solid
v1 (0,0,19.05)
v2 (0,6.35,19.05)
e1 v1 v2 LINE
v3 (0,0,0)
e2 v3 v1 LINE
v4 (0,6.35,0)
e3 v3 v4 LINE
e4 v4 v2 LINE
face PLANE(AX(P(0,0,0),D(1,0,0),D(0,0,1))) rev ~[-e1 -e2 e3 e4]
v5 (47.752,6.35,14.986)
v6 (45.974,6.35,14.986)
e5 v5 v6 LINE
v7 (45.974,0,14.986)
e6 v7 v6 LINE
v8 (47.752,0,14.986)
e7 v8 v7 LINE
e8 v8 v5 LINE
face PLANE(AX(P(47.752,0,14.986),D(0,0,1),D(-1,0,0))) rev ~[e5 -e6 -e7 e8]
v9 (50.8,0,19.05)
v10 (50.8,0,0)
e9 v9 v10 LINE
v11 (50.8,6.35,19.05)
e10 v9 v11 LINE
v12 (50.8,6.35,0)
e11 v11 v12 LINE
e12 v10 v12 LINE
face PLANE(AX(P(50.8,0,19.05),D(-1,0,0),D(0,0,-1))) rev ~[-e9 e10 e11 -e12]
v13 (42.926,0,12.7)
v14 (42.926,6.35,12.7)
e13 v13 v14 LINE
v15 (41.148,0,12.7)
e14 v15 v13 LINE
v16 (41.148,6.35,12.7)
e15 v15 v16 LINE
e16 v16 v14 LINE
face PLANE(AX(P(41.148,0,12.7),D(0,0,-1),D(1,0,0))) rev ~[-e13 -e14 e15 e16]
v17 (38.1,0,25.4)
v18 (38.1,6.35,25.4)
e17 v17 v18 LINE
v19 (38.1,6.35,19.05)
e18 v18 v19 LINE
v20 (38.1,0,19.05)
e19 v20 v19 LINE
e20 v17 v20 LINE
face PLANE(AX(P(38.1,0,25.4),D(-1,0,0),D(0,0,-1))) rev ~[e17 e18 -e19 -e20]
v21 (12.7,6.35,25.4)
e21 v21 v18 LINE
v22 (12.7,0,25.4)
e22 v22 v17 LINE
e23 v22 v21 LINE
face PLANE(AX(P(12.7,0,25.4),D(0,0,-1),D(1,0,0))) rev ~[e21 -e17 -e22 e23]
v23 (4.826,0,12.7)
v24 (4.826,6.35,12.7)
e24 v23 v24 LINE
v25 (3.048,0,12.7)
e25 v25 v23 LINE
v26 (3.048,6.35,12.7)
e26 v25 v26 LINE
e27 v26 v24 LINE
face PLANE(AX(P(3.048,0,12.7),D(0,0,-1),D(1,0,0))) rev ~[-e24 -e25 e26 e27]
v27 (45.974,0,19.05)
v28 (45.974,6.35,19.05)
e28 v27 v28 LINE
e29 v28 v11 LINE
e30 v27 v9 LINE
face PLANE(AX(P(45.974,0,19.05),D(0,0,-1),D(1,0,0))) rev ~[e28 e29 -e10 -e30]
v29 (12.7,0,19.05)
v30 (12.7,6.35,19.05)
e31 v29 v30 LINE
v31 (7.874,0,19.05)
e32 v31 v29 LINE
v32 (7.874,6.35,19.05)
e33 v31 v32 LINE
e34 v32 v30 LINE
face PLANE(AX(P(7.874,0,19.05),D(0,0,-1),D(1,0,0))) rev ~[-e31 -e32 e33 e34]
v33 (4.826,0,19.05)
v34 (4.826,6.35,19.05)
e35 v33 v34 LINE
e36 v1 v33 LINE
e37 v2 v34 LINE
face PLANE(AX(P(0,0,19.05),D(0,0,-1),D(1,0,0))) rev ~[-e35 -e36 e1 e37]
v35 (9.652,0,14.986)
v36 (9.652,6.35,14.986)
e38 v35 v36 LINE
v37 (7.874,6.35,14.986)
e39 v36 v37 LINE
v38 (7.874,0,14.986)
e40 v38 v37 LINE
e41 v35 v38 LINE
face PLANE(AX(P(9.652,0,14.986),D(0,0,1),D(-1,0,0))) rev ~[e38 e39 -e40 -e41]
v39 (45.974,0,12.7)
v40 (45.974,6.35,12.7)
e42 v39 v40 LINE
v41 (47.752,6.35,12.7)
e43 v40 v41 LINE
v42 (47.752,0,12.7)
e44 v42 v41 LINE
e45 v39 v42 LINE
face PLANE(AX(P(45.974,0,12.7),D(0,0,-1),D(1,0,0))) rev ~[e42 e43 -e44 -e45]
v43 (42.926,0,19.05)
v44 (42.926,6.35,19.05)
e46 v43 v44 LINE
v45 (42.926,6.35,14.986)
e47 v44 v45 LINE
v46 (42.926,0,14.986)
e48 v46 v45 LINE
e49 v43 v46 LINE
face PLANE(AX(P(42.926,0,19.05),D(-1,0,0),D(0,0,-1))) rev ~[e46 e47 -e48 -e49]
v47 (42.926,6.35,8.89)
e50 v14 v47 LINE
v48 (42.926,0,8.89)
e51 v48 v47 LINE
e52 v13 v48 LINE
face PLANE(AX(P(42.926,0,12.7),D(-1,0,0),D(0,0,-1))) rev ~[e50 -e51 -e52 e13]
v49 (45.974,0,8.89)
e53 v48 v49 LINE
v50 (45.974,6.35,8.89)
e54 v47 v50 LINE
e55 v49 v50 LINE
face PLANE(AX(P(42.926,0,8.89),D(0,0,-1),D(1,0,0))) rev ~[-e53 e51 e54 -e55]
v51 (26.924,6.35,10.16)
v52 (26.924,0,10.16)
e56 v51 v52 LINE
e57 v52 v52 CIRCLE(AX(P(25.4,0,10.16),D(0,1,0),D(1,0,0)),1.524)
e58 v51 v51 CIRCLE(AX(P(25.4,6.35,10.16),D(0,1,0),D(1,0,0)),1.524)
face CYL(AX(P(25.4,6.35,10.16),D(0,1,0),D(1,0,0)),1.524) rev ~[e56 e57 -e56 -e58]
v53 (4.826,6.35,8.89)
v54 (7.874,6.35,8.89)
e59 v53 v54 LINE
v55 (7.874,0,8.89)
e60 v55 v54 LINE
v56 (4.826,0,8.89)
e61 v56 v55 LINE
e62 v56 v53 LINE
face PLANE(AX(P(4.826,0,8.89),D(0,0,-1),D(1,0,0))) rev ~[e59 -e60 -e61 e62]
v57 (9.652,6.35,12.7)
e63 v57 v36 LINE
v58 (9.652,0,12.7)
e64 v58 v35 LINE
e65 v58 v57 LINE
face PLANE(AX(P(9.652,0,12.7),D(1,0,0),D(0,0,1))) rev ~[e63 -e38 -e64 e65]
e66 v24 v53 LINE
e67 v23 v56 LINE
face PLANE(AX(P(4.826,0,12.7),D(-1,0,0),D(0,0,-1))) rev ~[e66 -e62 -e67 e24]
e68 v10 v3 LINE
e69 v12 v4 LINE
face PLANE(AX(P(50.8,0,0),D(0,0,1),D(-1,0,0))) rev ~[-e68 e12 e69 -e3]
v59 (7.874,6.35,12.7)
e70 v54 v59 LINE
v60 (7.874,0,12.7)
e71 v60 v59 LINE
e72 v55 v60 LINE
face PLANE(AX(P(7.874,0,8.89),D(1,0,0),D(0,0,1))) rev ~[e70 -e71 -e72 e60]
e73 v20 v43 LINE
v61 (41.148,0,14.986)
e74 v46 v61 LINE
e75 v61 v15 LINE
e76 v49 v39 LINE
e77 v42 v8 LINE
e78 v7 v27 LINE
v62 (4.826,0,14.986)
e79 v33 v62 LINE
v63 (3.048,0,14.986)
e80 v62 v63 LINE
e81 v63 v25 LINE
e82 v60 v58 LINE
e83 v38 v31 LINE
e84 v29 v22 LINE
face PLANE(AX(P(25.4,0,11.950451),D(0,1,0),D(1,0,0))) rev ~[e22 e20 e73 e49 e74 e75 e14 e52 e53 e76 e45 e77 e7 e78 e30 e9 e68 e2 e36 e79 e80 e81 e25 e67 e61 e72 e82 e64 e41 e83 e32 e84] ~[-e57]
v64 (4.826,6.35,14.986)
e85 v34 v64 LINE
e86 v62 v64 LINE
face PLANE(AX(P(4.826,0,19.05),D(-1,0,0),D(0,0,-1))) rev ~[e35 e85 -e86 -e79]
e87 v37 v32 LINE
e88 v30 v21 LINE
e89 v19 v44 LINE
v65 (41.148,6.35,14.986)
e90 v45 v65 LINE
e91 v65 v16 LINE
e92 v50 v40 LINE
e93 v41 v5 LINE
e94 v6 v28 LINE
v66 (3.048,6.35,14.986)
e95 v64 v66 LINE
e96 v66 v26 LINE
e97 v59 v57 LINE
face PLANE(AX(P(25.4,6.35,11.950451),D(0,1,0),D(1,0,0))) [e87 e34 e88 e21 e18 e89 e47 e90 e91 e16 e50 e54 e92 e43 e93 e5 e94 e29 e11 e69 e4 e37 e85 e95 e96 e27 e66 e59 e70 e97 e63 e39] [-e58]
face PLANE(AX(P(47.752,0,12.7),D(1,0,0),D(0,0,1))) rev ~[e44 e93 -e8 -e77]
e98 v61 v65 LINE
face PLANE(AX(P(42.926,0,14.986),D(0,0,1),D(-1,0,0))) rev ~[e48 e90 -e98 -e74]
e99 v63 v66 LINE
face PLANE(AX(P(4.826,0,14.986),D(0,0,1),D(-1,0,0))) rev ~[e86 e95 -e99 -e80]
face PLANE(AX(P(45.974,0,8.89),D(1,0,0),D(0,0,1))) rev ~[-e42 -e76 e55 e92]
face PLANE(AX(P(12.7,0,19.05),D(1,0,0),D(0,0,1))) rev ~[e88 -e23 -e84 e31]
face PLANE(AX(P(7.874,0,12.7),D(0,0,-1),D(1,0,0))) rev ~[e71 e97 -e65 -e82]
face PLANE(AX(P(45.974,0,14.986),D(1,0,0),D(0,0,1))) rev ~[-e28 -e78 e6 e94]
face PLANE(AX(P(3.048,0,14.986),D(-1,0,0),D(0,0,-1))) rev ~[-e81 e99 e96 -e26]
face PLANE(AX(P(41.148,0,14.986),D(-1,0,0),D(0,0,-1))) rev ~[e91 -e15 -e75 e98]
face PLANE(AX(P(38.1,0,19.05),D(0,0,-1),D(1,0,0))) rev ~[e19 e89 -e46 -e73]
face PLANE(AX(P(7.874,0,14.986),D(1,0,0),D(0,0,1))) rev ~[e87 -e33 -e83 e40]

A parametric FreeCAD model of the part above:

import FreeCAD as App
import Part
import Sketcher

V = App.Vector
Q = App.Units.Quantity


def add_polygon(sketch, points):
    """Adds a closed chain of lines whose ends are joined by coincident constraints."""
    first, n = sketch.GeometryCount, len(points)
    for a, b in zip(points, points[1:] + points[:1]):
        sketch.addGeometry(Part.LineSegment(App.Vector(*a, 0), App.Vector(*b, 0)), False)
    for i in range(n):
        sketch.addConstraint(Sketcher.Constraint("Coincident", first + i, 2, first + (i + 1) % n, 1))

doc = App.newDocument("Part")
params = doc.addObject("Spreadsheet::Sheet", "Params")
for row, (alias, value) in enumerate([
    ("sketch1_width", "2 in"),
    ("sketch1_width2", "1 in"),
    ("sketch1_width3", "0.19 in"),
    ("sketch1_width4", "0.07 in"),
    ("sketch1_height", "0.75 in"),
    ("pad1_length", "0.25 in"),
    ("sketch2_diameter", "0.12 in"),
], start=1):
    params.set(f"A{row}", alias)
    params.set(f"B{row}", "=" + value)
    params.setAlias(f"B{row}", alias)

body = doc.addObject("PartDesign::Body", "Body")

# Sketch on XZ plane
sketch1 = body.newObject("Sketcher::SketchObject", "Sketch")
sketch1.AttachmentSupport = (doc.getObject("XZ_Plane"), [""])
sketch1.MapMode = "FlatFace"
add_polygon(sketch1, [(50.8, 0), (0, 0), (0, 19.1), (4.8, 19.1), (4.8, 15), (3, 15), (3, 12.7), (4.8, 12.7), (4.8, 8.9), (7.9, 8.9), (7.9, 12.7), (9.7, 12.7), (9.7, 15), (7.9, 15), (7.9, 19.1), (12.7, 19.1), (12.7, 25.4), (38.1, 25.4), (38.1, 19.1), (42.9, 19.1), (42.9, 15), (41.1, 15), (41.1, 12.7), (42.9, 12.7), (42.9, 8.9), (46, 8.9), (46, 12.7), (47.8, 12.7), (47.8, 15), (46, 15), (46, 19.1), (50.8, 19.1)])  # lines 0-31
sketch1.addConstraint([
    Sketcher.Constraint("Horizontal", 0),
    Sketcher.Constraint("Vertical", 1),
    Sketcher.Constraint("Horizontal", 2),
    Sketcher.Constraint("Vertical", 3),
    Sketcher.Constraint("Horizontal", 4),
    Sketcher.Constraint("Vertical", 5),
    Sketcher.Constraint("Horizontal", 6),
    Sketcher.Constraint("Vertical", 7),
    Sketcher.Constraint("Horizontal", 8),
    Sketcher.Constraint("Vertical", 9),
    Sketcher.Constraint("Horizontal", 10),
    Sketcher.Constraint("Vertical", 11),
    Sketcher.Constraint("Horizontal", 12),
    Sketcher.Constraint("Vertical", 13),
    Sketcher.Constraint("Horizontal", 14),
    Sketcher.Constraint("Vertical", 15),
    Sketcher.Constraint("Horizontal", 16),
    Sketcher.Constraint("Vertical", 17),
    Sketcher.Constraint("Horizontal", 18),
    Sketcher.Constraint("Vertical", 19),
    Sketcher.Constraint("Horizontal", 20),
    Sketcher.Constraint("Vertical", 21),
    Sketcher.Constraint("Horizontal", 22),
    Sketcher.Constraint("Vertical", 23),
    Sketcher.Constraint("Horizontal", 24),
    Sketcher.Constraint("Vertical", 25),
    Sketcher.Constraint("Horizontal", 26),
    Sketcher.Constraint("Vertical", 27),
    Sketcher.Constraint("Horizontal", 28),
    Sketcher.Constraint("Vertical", 29),
    Sketcher.Constraint("Horizontal", 30),
    Sketcher.Constraint("Vertical", 31),
    Sketcher.Constraint("Coincident", 0, 2, -1, 1),
    Sketcher.Constraint("Horizontal", 6, 2, 9, 2),
    Sketcher.Constraint("Horizontal", 4, 2, 11, 2),
    Sketcher.Constraint("Horizontal", 2, 2, 13, 2),
    Sketcher.Constraint("Horizontal", 14, 2, 17, 2),
    Sketcher.Constraint("Horizontal", 12, 2, 19, 2),
    Sketcher.Constraint("Horizontal", 10, 2, 21, 2),
    Sketcher.Constraint("Horizontal", 8, 2, 23, 2),
    Sketcher.Constraint("Horizontal", 22, 2, 25, 2),
    Sketcher.Constraint("Horizontal", 20, 2, 27, 2),
    Sketcher.Constraint("Horizontal", 18, 2, 29, 2),
    Sketcher.Constraint("Vertical", 3, 2, 6, 2),
    Sketcher.Constraint("Vertical", 9, 2, 12, 2),
    Sketcher.Constraint("Vertical", 19, 2, 22, 2),
    Sketcher.Constraint("Vertical", 25, 2, 28, 2),
    Sketcher.Constraint("Equal", 6, 10),
    Sketcher.Constraint("Equal", 2, 14),
    Sketcher.Constraint("Equal", 14, 18),
    Sketcher.Constraint("Equal", 12, 20),
    Sketcher.Constraint("Equal", 8, 24),
    Sketcher.Constraint("Equal", 22, 26),
    Sketcher.Constraint("Equal", 18, 30),
    Sketcher.Constraint("DistanceX", 0, 2, 0, 1, Q("2 in")),
    Sketcher.Constraint("DistanceX", 16, 1, 16, 2, Q("1 in")),
    Sketcher.Constraint("DistanceY", -1, 1, 15, 2, Q("1 in")),
    Sketcher.Constraint("DistanceX", 2, 1, 2, 2, Q("0.19 in")),
    Sketcher.Constraint("DistanceX", 4, 2, 4, 1, Q("0.07 in")),
    Sketcher.Constraint("DistanceY", 1, 1, 1, 2, Q("0.75 in")),
    Sketcher.Constraint("DistanceY", 3, 2, 3, 1, Q("0.16 in")),
    Sketcher.Constraint("DistanceY", 5, 2, 5, 1, Q("0.09 in")),
    Sketcher.Constraint("DistanceY", 7, 2, 7, 1, Q("0.15 in")),
])
sketch1.setExpression("Constraints[86]", "Params.sketch1_width")
sketch1.setExpression("Constraints[87]", "Params.sketch1_width2")
sketch1.setExpression("Constraints[89]", "Params.sketch1_width3")
sketch1.setExpression("Constraints[90]", "Params.sketch1_width4")
sketch1.setExpression("Constraints[91]", "Params.sketch1_height")
pad1 = body.newObject("PartDesign::Pad", "Pad")
pad1.Profile = sketch1
pad1.setExpression("Length", "Params.pad1_length")
pad1.Reversed = True

# Sketch on XZ plane
sketch2 = body.newObject("Sketcher::SketchObject", "Sketch001")
sketch2.AttachmentSupport = (doc.getObject("XZ_Plane"), [""])
sketch2.MapMode = "FlatFace"
sketch2.AttachmentOffset = App.Placement(V(0, 0, -0.25 * 25.4), App.Rotation())
sketch2.addGeometry(Part.Circle(V(25.4, 10.2, 0), V(0, 0, 1), 1.5), False)
sketch2.addConstraint([
    Sketcher.Constraint("Diameter", 0, Q("0.12 in")),
    Sketcher.Constraint("DistanceX", -1, 1, 0, 3, Q("1 in")),
    Sketcher.Constraint("DistanceY", -1, 1, 0, 3, Q("0.4 in")),
])
sketch2.setExpression("Constraints[0]", "Params.sketch2_diameter")
pocket1 = body.newObject("PartDesign::Pocket", "Pocket")
pocket1.Profile = sketch2
pocket1.Type = "ThroughAll"
pocket1.Reversed = True

doc.recompute()
